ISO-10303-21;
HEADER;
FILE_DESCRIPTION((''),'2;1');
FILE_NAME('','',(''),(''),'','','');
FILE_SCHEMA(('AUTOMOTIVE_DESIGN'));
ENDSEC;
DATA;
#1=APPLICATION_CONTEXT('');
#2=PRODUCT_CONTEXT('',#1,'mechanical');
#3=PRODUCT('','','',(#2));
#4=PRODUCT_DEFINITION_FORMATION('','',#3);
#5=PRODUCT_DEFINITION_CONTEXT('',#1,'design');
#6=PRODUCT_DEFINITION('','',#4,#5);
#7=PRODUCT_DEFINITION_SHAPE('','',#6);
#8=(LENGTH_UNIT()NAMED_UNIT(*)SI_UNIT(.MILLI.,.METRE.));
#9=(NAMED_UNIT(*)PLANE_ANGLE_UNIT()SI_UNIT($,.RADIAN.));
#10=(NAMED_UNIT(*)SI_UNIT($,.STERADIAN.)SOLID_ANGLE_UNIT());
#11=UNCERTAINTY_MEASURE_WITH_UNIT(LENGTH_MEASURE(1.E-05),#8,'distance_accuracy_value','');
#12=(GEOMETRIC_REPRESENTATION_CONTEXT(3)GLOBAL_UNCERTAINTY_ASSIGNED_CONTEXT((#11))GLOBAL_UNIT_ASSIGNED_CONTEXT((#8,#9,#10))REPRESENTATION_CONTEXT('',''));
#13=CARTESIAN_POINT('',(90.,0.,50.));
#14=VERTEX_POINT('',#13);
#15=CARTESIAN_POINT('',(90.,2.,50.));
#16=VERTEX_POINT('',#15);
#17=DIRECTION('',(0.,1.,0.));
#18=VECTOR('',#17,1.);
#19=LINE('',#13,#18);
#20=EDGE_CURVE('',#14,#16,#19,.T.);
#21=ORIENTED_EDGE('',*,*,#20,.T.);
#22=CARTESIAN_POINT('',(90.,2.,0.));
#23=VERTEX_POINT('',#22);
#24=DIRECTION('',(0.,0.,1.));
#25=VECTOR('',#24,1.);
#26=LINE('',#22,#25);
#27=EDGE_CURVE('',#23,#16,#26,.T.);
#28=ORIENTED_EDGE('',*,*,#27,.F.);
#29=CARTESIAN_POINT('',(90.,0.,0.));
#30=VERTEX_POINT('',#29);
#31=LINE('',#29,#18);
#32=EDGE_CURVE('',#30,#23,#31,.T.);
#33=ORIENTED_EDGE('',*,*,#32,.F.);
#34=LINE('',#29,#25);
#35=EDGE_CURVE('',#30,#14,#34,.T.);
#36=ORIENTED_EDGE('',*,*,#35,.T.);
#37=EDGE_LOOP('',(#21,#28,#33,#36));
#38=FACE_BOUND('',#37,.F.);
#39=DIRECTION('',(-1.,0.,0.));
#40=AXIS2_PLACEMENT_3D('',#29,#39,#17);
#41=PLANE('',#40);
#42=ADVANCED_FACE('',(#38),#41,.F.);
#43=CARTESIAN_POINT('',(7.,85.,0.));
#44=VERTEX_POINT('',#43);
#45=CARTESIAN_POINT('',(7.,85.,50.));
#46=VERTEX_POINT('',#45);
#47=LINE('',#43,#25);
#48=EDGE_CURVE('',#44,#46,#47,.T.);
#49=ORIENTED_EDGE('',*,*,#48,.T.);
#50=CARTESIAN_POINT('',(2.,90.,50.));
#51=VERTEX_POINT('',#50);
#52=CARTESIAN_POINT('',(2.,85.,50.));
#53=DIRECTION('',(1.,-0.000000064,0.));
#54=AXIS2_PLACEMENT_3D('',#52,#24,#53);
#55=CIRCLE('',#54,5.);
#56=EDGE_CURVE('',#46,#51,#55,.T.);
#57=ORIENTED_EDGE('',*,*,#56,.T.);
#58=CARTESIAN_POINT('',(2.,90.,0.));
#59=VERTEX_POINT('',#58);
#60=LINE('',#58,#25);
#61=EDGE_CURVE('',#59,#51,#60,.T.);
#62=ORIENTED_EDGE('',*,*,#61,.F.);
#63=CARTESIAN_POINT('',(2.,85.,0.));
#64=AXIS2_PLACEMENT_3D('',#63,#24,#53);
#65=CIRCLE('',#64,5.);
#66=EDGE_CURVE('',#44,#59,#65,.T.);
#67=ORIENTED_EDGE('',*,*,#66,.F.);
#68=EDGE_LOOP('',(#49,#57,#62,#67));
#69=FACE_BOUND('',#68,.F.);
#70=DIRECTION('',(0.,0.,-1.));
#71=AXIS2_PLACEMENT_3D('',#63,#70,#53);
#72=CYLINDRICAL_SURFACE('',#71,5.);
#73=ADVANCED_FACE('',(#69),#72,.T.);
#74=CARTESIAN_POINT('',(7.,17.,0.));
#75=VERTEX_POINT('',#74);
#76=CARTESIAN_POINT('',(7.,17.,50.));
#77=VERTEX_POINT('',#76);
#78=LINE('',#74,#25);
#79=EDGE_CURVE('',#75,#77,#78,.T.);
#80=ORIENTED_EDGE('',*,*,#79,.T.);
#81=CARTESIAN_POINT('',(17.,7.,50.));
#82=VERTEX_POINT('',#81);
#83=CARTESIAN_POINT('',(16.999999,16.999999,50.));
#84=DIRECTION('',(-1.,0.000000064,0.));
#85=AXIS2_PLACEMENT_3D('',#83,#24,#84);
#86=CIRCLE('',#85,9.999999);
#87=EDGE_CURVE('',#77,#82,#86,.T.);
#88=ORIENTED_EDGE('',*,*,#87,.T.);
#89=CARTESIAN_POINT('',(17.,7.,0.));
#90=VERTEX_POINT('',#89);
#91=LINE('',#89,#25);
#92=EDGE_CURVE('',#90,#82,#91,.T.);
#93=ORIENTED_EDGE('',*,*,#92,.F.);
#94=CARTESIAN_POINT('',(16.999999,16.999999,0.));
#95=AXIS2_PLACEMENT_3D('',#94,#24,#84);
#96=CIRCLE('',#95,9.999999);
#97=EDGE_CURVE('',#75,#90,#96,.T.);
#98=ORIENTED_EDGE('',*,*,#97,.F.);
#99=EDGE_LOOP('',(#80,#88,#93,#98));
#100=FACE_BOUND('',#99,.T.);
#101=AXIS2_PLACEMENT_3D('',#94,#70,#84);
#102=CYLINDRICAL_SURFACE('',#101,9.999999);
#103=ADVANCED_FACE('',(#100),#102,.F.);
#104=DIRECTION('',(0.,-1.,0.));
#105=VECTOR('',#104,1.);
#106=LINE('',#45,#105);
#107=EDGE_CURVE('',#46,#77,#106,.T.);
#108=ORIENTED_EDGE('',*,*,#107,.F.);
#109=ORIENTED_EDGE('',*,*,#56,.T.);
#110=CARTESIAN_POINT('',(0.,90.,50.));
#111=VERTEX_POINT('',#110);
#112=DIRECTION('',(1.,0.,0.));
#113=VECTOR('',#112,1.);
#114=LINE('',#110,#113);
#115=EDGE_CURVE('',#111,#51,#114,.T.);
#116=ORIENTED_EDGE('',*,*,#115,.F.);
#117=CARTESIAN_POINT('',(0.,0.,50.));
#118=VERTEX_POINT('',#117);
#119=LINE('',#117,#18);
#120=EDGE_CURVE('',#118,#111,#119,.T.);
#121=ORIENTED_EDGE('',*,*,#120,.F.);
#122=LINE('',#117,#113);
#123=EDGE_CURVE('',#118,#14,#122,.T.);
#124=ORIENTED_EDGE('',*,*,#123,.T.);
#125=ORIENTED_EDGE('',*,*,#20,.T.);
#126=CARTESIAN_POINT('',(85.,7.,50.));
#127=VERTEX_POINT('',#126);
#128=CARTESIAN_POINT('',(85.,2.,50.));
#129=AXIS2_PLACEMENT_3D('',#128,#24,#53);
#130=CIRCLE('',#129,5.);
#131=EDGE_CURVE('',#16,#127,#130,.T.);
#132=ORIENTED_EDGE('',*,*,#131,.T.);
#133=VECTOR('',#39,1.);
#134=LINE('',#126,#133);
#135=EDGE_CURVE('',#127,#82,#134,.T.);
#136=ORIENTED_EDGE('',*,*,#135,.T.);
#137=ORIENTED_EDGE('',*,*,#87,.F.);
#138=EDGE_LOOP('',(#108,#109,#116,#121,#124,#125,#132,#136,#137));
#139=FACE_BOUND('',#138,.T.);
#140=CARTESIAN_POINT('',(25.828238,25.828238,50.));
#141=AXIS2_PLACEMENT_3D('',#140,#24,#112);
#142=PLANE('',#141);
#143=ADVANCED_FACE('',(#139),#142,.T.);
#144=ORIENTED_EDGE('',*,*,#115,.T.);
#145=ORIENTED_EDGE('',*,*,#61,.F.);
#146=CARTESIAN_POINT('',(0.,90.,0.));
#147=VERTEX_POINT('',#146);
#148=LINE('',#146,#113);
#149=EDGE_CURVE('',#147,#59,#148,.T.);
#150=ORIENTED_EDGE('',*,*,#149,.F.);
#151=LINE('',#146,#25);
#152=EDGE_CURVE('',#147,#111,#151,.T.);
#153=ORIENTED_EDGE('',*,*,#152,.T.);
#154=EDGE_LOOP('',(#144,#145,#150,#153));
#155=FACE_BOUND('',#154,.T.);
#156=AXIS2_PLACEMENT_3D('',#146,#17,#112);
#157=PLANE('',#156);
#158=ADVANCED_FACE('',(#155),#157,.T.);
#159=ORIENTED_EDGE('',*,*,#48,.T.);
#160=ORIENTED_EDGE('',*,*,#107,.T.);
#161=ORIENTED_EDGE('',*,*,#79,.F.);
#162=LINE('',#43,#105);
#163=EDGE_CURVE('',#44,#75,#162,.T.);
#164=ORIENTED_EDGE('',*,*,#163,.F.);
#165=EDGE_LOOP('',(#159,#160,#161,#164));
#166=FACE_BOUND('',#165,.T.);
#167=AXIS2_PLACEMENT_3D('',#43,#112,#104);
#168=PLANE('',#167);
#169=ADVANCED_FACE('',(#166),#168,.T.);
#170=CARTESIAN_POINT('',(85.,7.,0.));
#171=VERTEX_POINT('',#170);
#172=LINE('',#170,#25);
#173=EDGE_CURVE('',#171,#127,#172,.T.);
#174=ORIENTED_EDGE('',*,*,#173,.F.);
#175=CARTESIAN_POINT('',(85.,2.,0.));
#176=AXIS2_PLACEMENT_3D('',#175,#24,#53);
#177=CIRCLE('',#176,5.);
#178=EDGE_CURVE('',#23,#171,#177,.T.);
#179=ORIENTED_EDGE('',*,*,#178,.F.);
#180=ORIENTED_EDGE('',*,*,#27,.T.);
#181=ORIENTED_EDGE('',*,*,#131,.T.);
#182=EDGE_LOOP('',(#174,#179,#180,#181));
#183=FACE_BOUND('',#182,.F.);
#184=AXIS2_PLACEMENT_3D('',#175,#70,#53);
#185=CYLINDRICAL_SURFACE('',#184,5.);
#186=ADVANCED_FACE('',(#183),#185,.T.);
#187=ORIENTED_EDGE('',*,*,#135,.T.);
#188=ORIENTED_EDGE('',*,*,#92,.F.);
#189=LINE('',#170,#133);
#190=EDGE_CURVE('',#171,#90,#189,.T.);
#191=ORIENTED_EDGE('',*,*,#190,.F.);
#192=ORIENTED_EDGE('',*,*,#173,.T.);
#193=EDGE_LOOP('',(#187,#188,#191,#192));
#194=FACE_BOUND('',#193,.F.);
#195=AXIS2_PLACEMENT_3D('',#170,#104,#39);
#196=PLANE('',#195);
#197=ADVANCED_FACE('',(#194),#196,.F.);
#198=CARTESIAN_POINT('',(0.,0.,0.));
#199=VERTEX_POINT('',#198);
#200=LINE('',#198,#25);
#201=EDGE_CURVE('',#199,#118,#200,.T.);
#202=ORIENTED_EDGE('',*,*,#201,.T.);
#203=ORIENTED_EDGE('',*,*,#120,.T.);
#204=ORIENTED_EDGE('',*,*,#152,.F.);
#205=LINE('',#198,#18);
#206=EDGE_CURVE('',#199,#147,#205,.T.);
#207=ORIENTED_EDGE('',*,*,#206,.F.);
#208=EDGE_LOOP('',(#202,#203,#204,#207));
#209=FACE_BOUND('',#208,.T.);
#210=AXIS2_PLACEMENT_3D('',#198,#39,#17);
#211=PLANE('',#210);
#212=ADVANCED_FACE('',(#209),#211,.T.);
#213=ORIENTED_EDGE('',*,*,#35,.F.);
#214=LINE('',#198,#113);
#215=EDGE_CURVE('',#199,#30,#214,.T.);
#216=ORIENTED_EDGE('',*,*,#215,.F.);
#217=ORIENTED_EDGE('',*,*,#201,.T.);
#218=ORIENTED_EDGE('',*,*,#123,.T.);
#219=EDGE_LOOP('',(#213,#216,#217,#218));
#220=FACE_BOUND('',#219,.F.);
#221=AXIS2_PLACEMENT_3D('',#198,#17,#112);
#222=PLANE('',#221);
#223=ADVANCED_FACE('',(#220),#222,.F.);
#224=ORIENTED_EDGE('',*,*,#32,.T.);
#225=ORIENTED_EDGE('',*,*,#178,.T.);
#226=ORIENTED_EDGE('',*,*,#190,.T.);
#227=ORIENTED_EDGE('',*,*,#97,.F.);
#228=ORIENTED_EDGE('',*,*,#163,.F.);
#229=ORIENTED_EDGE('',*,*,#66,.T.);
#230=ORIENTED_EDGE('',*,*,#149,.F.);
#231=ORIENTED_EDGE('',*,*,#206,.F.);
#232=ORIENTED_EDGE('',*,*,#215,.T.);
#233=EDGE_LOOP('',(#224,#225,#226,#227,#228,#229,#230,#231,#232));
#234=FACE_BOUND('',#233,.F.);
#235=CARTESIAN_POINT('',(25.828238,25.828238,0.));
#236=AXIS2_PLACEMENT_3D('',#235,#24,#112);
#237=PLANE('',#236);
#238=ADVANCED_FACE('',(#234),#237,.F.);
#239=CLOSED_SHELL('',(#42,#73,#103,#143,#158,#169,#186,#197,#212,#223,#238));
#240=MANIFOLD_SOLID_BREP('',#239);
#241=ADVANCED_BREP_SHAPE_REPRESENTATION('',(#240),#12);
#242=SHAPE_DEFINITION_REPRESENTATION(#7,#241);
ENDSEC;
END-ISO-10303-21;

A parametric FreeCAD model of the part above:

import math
import FreeCAD as App
import Part
import Sketcher

V = App.Vector

doc = App.newDocument("Part")
body = doc.addObject("PartDesign::Body", "Body")

sketch1 = doc.addObject("Sketcher::SketchObject", "Sketch")
body.addObject(sketch1)
sketch1.AttachmentSupport = (doc.XY_Plane, [""])
sketch1.MapMode = "FlatFace"
sketch1.addGeometry([
    Part.LineSegment(V(0, 0, 0), V(90, 0, 0)),
    Part.LineSegment(V(90, 0, 0), V(90, 2, 0)),
    Part.ArcOfCircle(Part.Circle(V(85, 2, 0), V(0, 0, 1), 5), math.radians(0), math.radians(90)),
    Part.LineSegment(V(85, 7, 0), V(17, 7, 0)),
    Part.ArcOfCircle(Part.Circle(V(17, 17, 0), V(0, 0, 1), 10), math.radians(180), math.radians(270)),
    Part.LineSegment(V(7, 17, 0), V(7, 85, 0)),
    Part.ArcOfCircle(Part.Circle(V(2, 85, 0), V(0, 0, 1), 5), math.radians(0), math.radians(90)),
    Part.LineSegment(V(2, 90, 0), V(0, 90, 0)),
    Part.LineSegment(V(0, 90, 0), V(0, 0, 0)),
], False)
sketch1.addConstraint([
    Sketcher.Constraint("Coincident", 0, 2, 1, 1),
    Sketcher.Constraint("Tangent", 1, 2, 2, 1),
    Sketcher.Constraint("Tangent", 2, 2, 3, 1),
    Sketcher.Constraint("Tangent", 3, 2, 4, 2),
    Sketcher.Constraint("Tangent", 4, 1, 5, 1),
    Sketcher.Constraint("Tangent", 5, 2, 6, 1),
    Sketcher.Constraint("Tangent", 6, 2, 7, 1),
    Sketcher.Constraint("Coincident", 7, 2, 8, 1),
    Sketcher.Constraint("Coincident", 8, 2, 0, 1),
    Sketcher.Constraint("Horizontal", 0),
    Sketcher.Constraint("Vertical", 1),
    Sketcher.Constraint("Horizontal", 3),
    Sketcher.Constraint("Vertical", 5),
    Sketcher.Constraint("Horizontal", 7),
    Sketcher.Constraint("Vertical", 8),
    Sketcher.Constraint("Coincident", 8, 2, -1, 1),
    Sketcher.Constraint("Equal", 2, 6),
    Sketcher.Constraint("Equal", 7, 1),
    Sketcher.Constraint("Equal", 3, 5),
    Sketcher.Constraint("Radius", 2, 5.0),
    Sketcher.Constraint("Radius", 4, 9.999999),
    Sketcher.Constraint("DistanceX", 0, 1, 0, 2, 90.0),
    Sketcher.Constraint("DistanceX", 3, 2, 3, 1, 68.0),
])
pad1 = doc.addObject("PartDesign::Pad", "Pad")
body.addObject(pad1)
pad1.Profile = sketch1
pad1.Length = 50

doc.recompute()
